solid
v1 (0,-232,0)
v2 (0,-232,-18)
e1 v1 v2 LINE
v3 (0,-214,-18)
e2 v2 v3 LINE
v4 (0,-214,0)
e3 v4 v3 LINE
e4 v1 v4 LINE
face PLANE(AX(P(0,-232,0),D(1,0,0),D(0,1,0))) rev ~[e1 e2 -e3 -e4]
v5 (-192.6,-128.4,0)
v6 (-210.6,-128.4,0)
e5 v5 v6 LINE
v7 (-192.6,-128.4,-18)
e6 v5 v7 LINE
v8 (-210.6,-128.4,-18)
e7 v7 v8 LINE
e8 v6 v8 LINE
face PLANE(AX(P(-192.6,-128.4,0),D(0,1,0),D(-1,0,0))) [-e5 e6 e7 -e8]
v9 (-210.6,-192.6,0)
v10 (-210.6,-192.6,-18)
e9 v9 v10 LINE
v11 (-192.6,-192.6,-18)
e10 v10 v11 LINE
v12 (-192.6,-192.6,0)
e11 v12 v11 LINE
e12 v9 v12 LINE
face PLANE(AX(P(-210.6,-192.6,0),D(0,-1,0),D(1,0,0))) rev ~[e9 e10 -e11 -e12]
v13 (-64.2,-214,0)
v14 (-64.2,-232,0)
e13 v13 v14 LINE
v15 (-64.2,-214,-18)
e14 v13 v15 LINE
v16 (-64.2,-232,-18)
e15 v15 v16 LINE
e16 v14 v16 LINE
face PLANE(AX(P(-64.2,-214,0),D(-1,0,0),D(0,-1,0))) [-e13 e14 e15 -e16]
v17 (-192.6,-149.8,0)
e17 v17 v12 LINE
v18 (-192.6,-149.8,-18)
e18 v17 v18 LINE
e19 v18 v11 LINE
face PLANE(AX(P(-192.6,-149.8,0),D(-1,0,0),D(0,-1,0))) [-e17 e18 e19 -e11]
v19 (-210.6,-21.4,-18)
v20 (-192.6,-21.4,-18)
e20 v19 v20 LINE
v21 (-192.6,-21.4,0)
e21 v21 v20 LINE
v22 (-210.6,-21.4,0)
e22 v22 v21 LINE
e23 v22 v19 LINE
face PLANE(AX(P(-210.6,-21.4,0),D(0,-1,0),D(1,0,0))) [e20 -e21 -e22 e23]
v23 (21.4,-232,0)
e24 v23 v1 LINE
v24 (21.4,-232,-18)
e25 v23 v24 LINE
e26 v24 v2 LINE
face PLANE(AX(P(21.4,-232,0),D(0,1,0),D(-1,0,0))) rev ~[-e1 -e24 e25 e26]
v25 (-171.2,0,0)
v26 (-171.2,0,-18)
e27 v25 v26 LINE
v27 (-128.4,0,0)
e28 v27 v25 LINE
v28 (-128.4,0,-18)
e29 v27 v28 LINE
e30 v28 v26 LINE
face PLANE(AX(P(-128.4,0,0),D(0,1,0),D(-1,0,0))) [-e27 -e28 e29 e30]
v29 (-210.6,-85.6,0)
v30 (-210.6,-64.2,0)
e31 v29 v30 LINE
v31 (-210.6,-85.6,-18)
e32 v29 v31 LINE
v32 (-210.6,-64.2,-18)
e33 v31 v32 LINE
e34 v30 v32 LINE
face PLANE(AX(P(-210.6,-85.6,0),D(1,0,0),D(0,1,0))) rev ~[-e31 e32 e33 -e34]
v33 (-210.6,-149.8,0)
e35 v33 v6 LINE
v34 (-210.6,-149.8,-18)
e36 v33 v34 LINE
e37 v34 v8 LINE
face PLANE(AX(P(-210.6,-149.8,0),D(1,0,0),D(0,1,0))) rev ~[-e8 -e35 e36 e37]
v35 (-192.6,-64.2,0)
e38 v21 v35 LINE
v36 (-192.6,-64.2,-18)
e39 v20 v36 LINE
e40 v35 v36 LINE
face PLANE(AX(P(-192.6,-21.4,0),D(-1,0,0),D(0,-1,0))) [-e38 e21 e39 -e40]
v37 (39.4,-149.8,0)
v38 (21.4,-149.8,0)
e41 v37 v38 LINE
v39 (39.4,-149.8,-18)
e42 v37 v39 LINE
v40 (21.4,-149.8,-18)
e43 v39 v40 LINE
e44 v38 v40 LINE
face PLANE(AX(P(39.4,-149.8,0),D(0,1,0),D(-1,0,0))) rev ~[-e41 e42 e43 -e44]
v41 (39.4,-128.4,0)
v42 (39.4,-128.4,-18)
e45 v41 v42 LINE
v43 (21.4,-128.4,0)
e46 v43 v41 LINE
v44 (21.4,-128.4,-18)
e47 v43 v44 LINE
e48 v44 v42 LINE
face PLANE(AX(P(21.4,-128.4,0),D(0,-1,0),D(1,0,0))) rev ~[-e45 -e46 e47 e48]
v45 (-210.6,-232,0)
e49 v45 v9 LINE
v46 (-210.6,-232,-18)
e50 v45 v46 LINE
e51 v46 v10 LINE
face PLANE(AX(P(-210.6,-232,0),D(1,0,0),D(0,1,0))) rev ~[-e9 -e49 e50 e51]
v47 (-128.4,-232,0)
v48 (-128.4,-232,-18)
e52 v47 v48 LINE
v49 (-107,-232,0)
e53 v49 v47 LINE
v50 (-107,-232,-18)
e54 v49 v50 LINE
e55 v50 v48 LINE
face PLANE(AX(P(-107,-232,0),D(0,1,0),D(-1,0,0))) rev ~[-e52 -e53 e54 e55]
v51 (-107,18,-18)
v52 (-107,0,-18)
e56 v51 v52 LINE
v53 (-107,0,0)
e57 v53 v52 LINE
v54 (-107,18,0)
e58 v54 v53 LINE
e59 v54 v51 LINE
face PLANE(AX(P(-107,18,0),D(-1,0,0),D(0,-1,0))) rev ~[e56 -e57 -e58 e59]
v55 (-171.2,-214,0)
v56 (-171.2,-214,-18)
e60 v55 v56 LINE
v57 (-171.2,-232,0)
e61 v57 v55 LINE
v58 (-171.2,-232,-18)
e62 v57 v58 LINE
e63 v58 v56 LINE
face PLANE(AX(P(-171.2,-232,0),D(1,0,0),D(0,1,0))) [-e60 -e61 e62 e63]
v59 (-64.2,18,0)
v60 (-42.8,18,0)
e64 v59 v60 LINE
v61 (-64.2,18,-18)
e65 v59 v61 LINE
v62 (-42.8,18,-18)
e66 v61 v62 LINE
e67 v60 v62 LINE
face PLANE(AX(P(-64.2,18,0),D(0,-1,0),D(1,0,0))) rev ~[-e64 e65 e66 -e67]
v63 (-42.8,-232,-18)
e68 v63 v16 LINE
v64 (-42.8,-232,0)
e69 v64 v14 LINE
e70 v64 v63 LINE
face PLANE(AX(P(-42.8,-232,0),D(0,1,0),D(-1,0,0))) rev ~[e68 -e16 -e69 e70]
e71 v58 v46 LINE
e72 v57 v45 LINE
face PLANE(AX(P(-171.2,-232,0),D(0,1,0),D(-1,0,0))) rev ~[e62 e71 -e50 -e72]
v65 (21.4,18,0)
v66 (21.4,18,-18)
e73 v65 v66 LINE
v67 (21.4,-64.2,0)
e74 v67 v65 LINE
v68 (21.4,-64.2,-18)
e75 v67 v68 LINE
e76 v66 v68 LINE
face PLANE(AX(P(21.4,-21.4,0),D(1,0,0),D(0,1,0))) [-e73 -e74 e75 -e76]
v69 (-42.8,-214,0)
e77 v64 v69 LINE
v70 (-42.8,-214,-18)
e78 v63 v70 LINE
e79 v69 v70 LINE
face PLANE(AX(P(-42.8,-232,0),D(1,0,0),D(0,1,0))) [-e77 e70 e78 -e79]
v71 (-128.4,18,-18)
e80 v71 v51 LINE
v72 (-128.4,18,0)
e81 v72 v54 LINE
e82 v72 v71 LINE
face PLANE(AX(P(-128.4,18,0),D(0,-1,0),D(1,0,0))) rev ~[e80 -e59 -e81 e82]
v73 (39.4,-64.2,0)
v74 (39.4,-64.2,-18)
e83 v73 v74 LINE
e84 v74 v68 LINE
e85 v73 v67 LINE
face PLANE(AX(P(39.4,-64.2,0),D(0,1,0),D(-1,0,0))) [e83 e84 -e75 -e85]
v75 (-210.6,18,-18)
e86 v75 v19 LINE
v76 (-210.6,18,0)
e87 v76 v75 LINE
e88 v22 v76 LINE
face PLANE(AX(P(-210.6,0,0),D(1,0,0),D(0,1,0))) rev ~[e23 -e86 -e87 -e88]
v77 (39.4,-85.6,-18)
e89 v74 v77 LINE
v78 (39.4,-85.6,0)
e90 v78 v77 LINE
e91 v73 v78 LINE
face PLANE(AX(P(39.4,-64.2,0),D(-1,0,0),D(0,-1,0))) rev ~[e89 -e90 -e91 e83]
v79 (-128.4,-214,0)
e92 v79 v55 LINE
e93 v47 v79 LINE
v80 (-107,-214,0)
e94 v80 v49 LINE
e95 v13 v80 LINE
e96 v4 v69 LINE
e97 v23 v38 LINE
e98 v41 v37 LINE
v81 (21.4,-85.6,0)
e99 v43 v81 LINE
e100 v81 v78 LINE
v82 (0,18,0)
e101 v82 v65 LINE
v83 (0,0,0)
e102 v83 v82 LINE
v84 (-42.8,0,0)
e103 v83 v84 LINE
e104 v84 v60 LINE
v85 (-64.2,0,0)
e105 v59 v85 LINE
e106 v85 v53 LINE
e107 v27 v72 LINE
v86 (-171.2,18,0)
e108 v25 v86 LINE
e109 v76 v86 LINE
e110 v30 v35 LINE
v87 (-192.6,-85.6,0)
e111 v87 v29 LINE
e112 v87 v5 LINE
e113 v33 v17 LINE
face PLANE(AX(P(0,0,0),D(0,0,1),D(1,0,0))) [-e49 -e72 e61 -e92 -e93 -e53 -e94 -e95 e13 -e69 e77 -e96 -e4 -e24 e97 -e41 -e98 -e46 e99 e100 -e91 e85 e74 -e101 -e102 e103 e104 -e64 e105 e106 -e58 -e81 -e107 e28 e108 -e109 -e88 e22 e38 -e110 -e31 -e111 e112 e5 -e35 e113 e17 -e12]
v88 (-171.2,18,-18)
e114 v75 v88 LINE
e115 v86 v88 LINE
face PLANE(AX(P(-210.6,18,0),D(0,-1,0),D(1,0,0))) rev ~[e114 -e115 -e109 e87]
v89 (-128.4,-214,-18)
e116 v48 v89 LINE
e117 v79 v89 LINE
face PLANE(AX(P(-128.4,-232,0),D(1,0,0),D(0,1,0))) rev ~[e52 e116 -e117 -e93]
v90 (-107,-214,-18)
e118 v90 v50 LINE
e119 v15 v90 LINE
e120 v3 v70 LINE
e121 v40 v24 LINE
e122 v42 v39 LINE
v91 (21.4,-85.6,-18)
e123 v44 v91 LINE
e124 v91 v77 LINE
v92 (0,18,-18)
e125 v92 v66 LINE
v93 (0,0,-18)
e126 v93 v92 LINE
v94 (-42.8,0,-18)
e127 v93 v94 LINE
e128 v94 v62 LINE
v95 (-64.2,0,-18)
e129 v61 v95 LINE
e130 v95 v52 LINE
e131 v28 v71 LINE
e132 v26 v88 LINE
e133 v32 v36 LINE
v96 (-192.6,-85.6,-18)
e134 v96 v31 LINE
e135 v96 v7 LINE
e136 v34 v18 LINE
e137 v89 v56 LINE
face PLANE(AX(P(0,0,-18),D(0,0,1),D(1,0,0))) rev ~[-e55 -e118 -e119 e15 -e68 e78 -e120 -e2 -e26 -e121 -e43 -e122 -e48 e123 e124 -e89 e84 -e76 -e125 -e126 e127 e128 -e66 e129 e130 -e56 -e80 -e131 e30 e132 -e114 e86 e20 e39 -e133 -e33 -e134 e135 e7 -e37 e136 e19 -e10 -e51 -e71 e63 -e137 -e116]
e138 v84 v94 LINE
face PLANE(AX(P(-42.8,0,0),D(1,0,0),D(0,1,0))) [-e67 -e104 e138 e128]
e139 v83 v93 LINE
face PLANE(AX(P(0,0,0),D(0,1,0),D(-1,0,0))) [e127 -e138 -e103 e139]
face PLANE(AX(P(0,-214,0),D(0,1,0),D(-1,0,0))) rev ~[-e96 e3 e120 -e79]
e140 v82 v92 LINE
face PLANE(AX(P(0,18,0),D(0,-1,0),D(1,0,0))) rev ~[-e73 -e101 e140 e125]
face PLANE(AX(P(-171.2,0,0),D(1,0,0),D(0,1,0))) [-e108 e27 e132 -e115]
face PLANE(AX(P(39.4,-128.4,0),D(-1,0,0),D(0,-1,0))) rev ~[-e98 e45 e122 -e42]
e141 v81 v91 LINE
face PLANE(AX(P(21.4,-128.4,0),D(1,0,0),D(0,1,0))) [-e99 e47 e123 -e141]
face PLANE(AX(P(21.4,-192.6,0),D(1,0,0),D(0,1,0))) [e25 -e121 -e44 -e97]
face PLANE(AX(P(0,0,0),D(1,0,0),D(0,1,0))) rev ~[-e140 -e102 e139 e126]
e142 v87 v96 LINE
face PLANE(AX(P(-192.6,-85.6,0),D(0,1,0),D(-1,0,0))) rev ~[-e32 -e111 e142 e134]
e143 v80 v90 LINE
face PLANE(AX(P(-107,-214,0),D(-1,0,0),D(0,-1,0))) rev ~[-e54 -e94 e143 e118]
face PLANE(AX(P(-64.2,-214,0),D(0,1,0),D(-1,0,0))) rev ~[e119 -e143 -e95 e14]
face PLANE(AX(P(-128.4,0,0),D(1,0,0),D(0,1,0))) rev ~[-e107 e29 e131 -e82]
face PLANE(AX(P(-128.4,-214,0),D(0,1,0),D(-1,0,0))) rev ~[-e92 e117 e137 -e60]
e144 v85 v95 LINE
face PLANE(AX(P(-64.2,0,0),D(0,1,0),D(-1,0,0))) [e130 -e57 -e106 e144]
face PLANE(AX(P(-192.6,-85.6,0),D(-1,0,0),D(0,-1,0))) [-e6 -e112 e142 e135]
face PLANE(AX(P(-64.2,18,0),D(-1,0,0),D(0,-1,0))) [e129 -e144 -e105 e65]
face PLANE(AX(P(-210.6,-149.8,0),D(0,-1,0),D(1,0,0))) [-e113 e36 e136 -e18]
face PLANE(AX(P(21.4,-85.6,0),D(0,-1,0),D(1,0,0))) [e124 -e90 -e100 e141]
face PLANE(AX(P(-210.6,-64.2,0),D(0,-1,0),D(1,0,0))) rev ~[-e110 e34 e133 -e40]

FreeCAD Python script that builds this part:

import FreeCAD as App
import Part
import Sketcher

V = App.Vector


def add_polygon(sketch, points):
    """Adds a closed chain of lines whose ends are joined by coincident constraints."""
    first, n = sketch.GeometryCount, len(points)
    for a, b in zip(points, points[1:] + points[:1]):
        sketch.addGeometry(Part.LineSegment(App.Vector(*a, 0), App.Vector(*b, 0)), False)
    for i in range(n):
        sketch.addConstraint(Sketcher.Constraint("Coincident", first + i, 2, first + (i + 1) % n, 1))

doc = App.newDocument("Part")
body = doc.addObject("PartDesign::Body", "Body")

sketch1 = body.newObject("Sketcher::SketchObject", "Sketch")
sketch1.AttachmentSupport = (doc.getObject("XY_Plane"), [""])
sketch1.MapMode = "FlatFace"
add_polygon(sketch1, [(-171, 18), (-211, 18), (-211, -21), (-193, -21), (-193, -64), (-211, -64), (-211, -86), (-193, -86), (-193, -128), (-211, -128), (-211, -150), (-193, -150), (-193, -193), (-211, -193), (-211, -232), (-171, -232), (-171, -214), (-128, -214), (-128, -232), (-107, -232), (-107, -214), (-64, -214), (-64, -232), (-43, -232), (-43, -214), (0, -214), (0, -232), (21, -232), (21, -150), (39, -150), (39, -128), (21, -128), (21, -86), (39, -86), (39, -64), (21, -64), (21, 18), (0, 18), (0, 0), (-43, 0), (-43, 18), (-64, 18), (-64, 0), (-107, 0), (-107, 18), (-128, 18), (-128, 0), (-171, 0)])
sketch1.addConstraint([
    Sketcher.Constraint("Horizontal", 0),
    Sketcher.Constraint("Vertical", 1),
    Sketcher.Constraint("Horizontal", 2),
    Sketcher.Constraint("Vertical", 3),
    Sketcher.Constraint("Horizontal", 4),
    Sketcher.Constraint("Vertical", 5),
    Sketcher.Constraint("Horizontal", 6),
    Sketcher.Constraint("Vertical", 7),
    Sketcher.Constraint("Horizontal", 8),
    Sketcher.Constraint("Vertical", 9),
    Sketcher.Constraint("Horizontal", 10),
    Sketcher.Constraint("Vertical", 11),
    Sketcher.Constraint("Horizontal", 12),
    Sketcher.Constraint("Vertical", 13),
    Sketcher.Constraint("Horizontal", 14),
    Sketcher.Constraint("Vertical", 15),
    Sketcher.Constraint("Horizontal", 16),
    Sketcher.Constraint("Vertical", 17),
    Sketcher.Constraint("Horizontal", 18),
    Sketcher.Constraint("Vertical", 19),
    Sketcher.Constraint("Horizontal", 20),
    Sketcher.Constraint("Vertical", 21),
    Sketcher.Constraint("Horizontal", 22),
    Sketcher.Constraint("Vertical", 23),
    Sketcher.Constraint("Horizontal", 24),
    Sketcher.Constraint("Vertical", 25),
    Sketcher.Constraint("Horizontal", 26),
    Sketcher.Constraint("Vertical", 27),
    Sketcher.Constraint("Horizontal", 28),
    Sketcher.Constraint("Vertical", 29),
    Sketcher.Constraint("Horizontal", 30),
    Sketcher.Constraint("Vertical", 31),
    Sketcher.Constraint("Horizontal", 32),
    Sketcher.Constraint("Vertical", 33),
    Sketcher.Constraint("Horizontal", 34),
    Sketcher.Constraint("Vertical", 35),
    Sketcher.Constraint("Horizontal", 36),
    Sketcher.Constraint("Vertical", 37),
    Sketcher.Constraint("Horizontal", 38),
    Sketcher.Constraint("Vertical", 39),
    Sketcher.Constraint("Horizontal", 40),
    Sketcher.Constraint("Vertical", 41),
    Sketcher.Constraint("Horizontal", 42),
    Sketcher.Constraint("Vertical", 43),
    Sketcher.Constraint("Horizontal", 44),
    Sketcher.Constraint("Vertical", 45),
    Sketcher.Constraint("Horizontal", 46),
    Sketcher.Constraint("Vertical", 47),
    Sketcher.Constraint("Coincident", 37, 2, -1, 1),
    Sketcher.Constraint("PointOnObject", 24, 2, -2),
    Sketcher.Constraint("PointOnObject", 41, 2, -1),
    Sketcher.Constraint("PointOnObject", 45, 2, -1),
    Sketcher.Constraint("Horizontal", 14, 2, 17, 2),
    Sketcher.Constraint("Horizontal", 16, 2, 19, 2),
    Sketcher.Constraint("Horizontal", 18, 2, 21, 2),
    Sketcher.Constraint("Horizontal", 20, 2, 23, 2),
    Sketcher.Constraint("Horizontal", 22, 2, 25, 2),
    Sketcher.Constraint("Horizontal", 10, 2, 27, 2),
    Sketcher.Constraint("Horizontal", 8, 2, 29, 2),
    Sketcher.Constraint("Horizontal", 6, 2, 31, 2),
    Sketcher.Constraint("Horizontal", 4, 2, 33, 2),
    Sketcher.Constraint("Horizontal", 0, 2, 35, 2),
    Sketcher.Constraint("Horizontal", 36, 2, 39, 2),
    Sketcher.Constraint("Horizontal", 40, 2, 43, 2),
    Sketcher.Constraint("Vertical", 1, 2, 4, 2),
    Sketcher.Constraint("Vertical", 3, 2, 6, 2),
    Sketcher.Constraint("Vertical", 5, 2, 8, 2),
    Sketcher.Constraint("Vertical", 7, 2, 10, 2),
    Sketcher.Constraint("Vertical", 9, 2, 12, 2),
    Sketcher.Constraint("Vertical", 27, 2, 30, 2),
    Sketcher.Constraint("Vertical", 29, 2, 32, 2),
    Sketcher.Constraint("Vertical", 31, 2, 34, 2),
    Sketcher.Constraint("Vertical", 23, 2, 38, 2),
    Sketcher.Constraint("Vertical", 21, 2, 40, 2),
    Sketcher.Constraint("Vertical", 19, 2, 42, 2),
    Sketcher.Constraint("Vertical", 17, 2, 44, 2),
    Sketcher.Constraint("Vertical", 15, 2, 46, 2),
    Sketcher.Constraint("Equal", 16, 20),
    Sketcher.Constraint("Equal", 18, 22),
    Sketcher.Constraint("Equal", 20, 24),
    Sketcher.Constraint("Equal", 22, 26),
    Sketcher.Constraint("Equal", 12, 28),
    Sketcher.Constraint("Equal", 14, 1),
    Sketcher.Constraint("Equal", 46, 3),
    Sketcher.Constraint("Equal", 44, 5),
    Sketcher.Constraint("Equal", 3, 7),
    Sketcher.Constraint("Equal", 5, 9),
    Sketcher.Constraint("Equal", 7, 11),
    Sketcher.Constraint("Equal", 1, 13),
    Sketcher.Constraint("Equal", 34, 15),
    Sketcher.Constraint("Equal", 25, 37),
    Sketcher.Constraint("DistanceX", 18, 1, 18, 2, 21.4),
    Sketcher.Constraint("DistanceY", 1, 2, -1, 1, 21.4),
    Sketcher.Constraint("DistanceX", 2, 1, 2, 2, 18.0),
    Sketcher.Constraint("DistanceX", 16, 1, 16, 2, 42.8),
])
pad1 = body.newObject("PartDesign::Pad", "Pad")
pad1.Profile = sketch1
pad1.Length = 18
pad1.Reversed = True

doc.recompute()
